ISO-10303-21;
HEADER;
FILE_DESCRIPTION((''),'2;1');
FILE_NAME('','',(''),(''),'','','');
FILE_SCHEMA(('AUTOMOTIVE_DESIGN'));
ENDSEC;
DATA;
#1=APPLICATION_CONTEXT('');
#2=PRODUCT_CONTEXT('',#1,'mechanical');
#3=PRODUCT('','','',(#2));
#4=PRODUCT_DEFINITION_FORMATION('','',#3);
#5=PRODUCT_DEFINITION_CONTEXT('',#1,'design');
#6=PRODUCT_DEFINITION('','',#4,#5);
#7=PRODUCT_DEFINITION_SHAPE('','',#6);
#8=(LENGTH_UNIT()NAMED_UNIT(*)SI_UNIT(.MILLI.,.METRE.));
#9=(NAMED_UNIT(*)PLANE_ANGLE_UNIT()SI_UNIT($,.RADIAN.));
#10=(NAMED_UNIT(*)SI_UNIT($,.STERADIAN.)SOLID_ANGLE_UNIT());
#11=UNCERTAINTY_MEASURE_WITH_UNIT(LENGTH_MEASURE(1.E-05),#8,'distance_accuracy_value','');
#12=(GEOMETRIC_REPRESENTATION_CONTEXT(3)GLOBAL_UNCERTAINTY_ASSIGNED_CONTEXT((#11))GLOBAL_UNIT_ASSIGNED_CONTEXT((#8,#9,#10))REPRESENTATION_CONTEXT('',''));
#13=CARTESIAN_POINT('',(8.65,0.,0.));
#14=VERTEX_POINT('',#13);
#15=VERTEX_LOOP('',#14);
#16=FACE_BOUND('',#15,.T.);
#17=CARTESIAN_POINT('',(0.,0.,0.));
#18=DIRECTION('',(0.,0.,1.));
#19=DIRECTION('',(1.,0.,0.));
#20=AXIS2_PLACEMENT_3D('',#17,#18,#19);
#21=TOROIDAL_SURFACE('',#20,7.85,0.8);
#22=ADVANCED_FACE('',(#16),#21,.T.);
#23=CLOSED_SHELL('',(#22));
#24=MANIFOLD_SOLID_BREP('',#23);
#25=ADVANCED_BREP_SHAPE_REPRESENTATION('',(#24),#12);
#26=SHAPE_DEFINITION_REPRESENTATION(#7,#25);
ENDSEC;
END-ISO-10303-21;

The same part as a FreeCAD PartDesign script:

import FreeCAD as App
import Part
import Sketcher
from FreeCAD import Vector
Q = App.Units.Quantity

doc = App.newDocument("Part")
body = doc.addObject("PartDesign::Body", "Body")

sketch1 = body.newObject("Sketcher::SketchObject", "Sketch")
sketch1.AttachmentSupport = (doc.getObject("YZ_Plane"), [""])
sketch1.MapMode = "FlatFace"
sketch1.addGeometry(Part.Circle(Vector(7.8, 0, 0), Vector(0, 0, 1), 0.8), False)
sketch1.addConstraint([
    Sketcher.Constraint("PointOnObject", 0, 3, -1),
    Sketcher.Constraint("Diameter", 0, Q("1.6 mm")),
    Sketcher.Constraint("DistanceX", -1, 1, 0, 3, Q("7.85 mm")),
])
revolution = body.newObject("PartDesign::Revolution", "Revolution")
revolution.Profile = sketch1
revolution.ReferenceAxis = (sketch1, ["V_Axis"])
revolution.Angle = 360

doc.recompute()
